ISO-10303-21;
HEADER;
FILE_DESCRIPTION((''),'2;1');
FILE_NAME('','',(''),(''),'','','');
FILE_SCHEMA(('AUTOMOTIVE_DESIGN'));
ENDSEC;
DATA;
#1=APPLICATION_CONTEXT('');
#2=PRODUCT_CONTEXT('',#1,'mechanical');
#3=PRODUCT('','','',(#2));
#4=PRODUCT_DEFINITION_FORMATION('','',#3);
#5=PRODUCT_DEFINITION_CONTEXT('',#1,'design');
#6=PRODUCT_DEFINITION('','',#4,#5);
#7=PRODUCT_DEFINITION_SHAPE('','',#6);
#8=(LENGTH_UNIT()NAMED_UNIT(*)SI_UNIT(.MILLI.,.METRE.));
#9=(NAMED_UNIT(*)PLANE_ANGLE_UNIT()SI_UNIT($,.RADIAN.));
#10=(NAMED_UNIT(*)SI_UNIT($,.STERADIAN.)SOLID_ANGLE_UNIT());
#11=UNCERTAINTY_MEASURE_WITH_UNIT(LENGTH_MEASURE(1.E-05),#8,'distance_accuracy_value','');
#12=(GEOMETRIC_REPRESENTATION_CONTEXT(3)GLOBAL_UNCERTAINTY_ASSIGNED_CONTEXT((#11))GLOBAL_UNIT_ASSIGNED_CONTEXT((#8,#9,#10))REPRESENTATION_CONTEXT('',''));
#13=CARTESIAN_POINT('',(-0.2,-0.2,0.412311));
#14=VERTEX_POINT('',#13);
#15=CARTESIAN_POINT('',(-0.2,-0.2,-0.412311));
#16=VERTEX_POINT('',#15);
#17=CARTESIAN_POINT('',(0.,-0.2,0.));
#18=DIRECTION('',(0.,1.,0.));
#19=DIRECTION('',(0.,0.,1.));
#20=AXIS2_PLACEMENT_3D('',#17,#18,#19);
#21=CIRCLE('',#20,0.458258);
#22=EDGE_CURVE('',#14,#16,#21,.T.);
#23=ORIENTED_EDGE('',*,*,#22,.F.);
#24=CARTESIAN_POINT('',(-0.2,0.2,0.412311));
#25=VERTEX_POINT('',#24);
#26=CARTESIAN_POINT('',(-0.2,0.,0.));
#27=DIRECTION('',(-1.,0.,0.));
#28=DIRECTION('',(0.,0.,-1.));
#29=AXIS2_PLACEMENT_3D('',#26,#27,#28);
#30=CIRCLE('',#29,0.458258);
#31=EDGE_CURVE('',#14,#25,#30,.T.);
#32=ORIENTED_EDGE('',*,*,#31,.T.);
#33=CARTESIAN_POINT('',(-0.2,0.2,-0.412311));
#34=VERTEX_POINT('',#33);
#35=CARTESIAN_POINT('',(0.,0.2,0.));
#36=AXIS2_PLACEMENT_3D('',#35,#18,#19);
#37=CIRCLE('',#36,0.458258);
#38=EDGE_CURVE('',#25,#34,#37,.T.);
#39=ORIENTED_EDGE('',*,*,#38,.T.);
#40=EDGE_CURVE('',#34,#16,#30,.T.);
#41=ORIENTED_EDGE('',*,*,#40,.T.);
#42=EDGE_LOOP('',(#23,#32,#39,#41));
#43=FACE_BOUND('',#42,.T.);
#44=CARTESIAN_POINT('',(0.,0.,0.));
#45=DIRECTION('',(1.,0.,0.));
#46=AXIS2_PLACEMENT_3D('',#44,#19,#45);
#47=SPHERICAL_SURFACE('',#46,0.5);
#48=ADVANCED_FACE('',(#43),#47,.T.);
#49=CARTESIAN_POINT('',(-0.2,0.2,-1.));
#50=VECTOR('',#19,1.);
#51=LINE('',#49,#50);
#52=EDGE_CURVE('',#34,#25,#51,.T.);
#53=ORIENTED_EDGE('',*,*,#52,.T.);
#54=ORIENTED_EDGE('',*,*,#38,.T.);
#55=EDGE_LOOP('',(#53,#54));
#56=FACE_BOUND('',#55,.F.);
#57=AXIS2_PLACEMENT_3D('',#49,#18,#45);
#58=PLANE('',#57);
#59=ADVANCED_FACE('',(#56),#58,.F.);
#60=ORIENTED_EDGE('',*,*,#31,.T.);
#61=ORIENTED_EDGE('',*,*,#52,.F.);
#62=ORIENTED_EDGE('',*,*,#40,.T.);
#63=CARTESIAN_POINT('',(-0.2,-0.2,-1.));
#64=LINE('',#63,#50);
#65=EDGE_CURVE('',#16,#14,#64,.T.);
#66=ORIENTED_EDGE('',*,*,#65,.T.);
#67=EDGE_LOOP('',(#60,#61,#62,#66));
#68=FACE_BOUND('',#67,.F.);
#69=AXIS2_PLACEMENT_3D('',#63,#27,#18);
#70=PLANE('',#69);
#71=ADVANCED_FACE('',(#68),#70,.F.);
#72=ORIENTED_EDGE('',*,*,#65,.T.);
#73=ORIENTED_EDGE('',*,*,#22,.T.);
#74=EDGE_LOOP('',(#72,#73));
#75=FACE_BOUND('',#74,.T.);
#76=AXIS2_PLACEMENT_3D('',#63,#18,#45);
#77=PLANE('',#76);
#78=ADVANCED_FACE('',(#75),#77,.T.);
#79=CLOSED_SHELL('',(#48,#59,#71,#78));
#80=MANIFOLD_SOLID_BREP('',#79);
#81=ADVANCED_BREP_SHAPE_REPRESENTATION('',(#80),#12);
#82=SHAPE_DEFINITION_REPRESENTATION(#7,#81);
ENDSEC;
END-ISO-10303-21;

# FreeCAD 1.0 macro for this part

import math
import FreeCAD as App
import Part
import Sketcher
from FreeCAD import Vector
Q = App.Units.Quantity


def add_polygon(sketch, points):
    """Adds a closed chain of lines whose ends are joined by coincident constraints."""
    first, n = sketch.GeometryCount, len(points)
    for a, b in zip(points, points[1:] + points[:1]):
        sketch.addGeometry(Part.LineSegment(App.Vector(*a, 0), App.Vector(*b, 0)), False)
    for i in range(n):
        sketch.addConstraint(Sketcher.Constraint("Coincident", first + i, 2, first + (i + 1) % n, 1))

doc = App.newDocument("Part")
body = doc.addObject("PartDesign::Body", "Body")

# Sketch on XY plane
sketch1 = body.newObject("Sketcher::SketchObject", "Sketch")
sketch1.AttachmentSupport = (doc.getObject("XY_Plane"), [""])
sketch1.MapMode = "FlatFace"
sketch1.AttachmentOffset = App.Placement(Vector(0, 0, -1), App.Rotation())
add_polygon(sketch1, [(-0.2, 0.2), (-0.2, -0.2), (4.8, -0.2), (4.8, 0.2)])  # lines 0-3
sketch1.addConstraint(Sketcher.Constraint("Vertical", 0))
sketch1.addConstraint(Sketcher.Constraint("Horizontal", 1))
sketch1.addConstraint(Sketcher.Constraint("Vertical", 2))
sketch1.addConstraint(Sketcher.Constraint("Horizontal", 3))
sketch1.addConstraint(Sketcher.Constraint("DistanceX", 1, 1, 1, 2, Q("5 mm")))
sketch1.addConstraint(Sketcher.Constraint("DistanceY", 0, 2, 0, 1, Q("0.4 mm")))
sketch1.addConstraint(Sketcher.Constraint("DistanceX", 0, 2, -1, 1, Q("0.2 mm")))
sketch1.addConstraint(Sketcher.Constraint("DistanceY", 0, 2, -1, 1, Q("0.2 mm")))
pad1 = body.newObject("PartDesign::Pad", "Pad")
pad1.Profile = sketch1
pad1.Length = 5
body2 = doc.addObject("PartDesign::Body", "Body001")

# Sketch on XZ plane
sketch2 = body2.newObject("Sketcher::SketchObject", "Sketch001")
sketch2.AttachmentSupport = (doc.getObject("XZ_Plane001"), [""])
sketch2.MapMode = "FlatFace"
sketch2.addGeometry(Part.ArcOfCircle(Part.Circle(Vector(0, 0, 0), Vector(0, 0, 1), 0.5), math.radians(-90), math.radians(90)), False)
sketch2.addGeometry(Part.LineSegment(Vector(0, 0.5, 0), Vector(0, -0.5, 0)), False)
sketch2.addConstraint(Sketcher.Constraint("Coincident", 0, 1, 1, 2))
sketch2.addConstraint(Sketcher.Constraint("Coincident", 1, 1, 0, 2))
sketch2.addConstraint(Sketcher.Constraint("Vertical", 1))
sketch2.addConstraint(Sketcher.Constraint("Coincident", 0, 3, -1, 1))
sketch2.addConstraint(Sketcher.Constraint("PointOnObject", 0, 1, -2))
sketch2.addConstraint(Sketcher.Constraint("Radius", 0, Q("0.5 mm")))
revolution = body2.newObject("PartDesign::Revolution", "Revolution")
revolution.Profile = sketch2
revolution.ReferenceAxis = (sketch2, ["V_Axis"])
revolution.Angle = 360
doc.recompute()

boolean = body2.newObject("PartDesign::Boolean", "Boolean")
boolean.Type = "Cut"
boolean.addObjects([body])

doc.recompute()
